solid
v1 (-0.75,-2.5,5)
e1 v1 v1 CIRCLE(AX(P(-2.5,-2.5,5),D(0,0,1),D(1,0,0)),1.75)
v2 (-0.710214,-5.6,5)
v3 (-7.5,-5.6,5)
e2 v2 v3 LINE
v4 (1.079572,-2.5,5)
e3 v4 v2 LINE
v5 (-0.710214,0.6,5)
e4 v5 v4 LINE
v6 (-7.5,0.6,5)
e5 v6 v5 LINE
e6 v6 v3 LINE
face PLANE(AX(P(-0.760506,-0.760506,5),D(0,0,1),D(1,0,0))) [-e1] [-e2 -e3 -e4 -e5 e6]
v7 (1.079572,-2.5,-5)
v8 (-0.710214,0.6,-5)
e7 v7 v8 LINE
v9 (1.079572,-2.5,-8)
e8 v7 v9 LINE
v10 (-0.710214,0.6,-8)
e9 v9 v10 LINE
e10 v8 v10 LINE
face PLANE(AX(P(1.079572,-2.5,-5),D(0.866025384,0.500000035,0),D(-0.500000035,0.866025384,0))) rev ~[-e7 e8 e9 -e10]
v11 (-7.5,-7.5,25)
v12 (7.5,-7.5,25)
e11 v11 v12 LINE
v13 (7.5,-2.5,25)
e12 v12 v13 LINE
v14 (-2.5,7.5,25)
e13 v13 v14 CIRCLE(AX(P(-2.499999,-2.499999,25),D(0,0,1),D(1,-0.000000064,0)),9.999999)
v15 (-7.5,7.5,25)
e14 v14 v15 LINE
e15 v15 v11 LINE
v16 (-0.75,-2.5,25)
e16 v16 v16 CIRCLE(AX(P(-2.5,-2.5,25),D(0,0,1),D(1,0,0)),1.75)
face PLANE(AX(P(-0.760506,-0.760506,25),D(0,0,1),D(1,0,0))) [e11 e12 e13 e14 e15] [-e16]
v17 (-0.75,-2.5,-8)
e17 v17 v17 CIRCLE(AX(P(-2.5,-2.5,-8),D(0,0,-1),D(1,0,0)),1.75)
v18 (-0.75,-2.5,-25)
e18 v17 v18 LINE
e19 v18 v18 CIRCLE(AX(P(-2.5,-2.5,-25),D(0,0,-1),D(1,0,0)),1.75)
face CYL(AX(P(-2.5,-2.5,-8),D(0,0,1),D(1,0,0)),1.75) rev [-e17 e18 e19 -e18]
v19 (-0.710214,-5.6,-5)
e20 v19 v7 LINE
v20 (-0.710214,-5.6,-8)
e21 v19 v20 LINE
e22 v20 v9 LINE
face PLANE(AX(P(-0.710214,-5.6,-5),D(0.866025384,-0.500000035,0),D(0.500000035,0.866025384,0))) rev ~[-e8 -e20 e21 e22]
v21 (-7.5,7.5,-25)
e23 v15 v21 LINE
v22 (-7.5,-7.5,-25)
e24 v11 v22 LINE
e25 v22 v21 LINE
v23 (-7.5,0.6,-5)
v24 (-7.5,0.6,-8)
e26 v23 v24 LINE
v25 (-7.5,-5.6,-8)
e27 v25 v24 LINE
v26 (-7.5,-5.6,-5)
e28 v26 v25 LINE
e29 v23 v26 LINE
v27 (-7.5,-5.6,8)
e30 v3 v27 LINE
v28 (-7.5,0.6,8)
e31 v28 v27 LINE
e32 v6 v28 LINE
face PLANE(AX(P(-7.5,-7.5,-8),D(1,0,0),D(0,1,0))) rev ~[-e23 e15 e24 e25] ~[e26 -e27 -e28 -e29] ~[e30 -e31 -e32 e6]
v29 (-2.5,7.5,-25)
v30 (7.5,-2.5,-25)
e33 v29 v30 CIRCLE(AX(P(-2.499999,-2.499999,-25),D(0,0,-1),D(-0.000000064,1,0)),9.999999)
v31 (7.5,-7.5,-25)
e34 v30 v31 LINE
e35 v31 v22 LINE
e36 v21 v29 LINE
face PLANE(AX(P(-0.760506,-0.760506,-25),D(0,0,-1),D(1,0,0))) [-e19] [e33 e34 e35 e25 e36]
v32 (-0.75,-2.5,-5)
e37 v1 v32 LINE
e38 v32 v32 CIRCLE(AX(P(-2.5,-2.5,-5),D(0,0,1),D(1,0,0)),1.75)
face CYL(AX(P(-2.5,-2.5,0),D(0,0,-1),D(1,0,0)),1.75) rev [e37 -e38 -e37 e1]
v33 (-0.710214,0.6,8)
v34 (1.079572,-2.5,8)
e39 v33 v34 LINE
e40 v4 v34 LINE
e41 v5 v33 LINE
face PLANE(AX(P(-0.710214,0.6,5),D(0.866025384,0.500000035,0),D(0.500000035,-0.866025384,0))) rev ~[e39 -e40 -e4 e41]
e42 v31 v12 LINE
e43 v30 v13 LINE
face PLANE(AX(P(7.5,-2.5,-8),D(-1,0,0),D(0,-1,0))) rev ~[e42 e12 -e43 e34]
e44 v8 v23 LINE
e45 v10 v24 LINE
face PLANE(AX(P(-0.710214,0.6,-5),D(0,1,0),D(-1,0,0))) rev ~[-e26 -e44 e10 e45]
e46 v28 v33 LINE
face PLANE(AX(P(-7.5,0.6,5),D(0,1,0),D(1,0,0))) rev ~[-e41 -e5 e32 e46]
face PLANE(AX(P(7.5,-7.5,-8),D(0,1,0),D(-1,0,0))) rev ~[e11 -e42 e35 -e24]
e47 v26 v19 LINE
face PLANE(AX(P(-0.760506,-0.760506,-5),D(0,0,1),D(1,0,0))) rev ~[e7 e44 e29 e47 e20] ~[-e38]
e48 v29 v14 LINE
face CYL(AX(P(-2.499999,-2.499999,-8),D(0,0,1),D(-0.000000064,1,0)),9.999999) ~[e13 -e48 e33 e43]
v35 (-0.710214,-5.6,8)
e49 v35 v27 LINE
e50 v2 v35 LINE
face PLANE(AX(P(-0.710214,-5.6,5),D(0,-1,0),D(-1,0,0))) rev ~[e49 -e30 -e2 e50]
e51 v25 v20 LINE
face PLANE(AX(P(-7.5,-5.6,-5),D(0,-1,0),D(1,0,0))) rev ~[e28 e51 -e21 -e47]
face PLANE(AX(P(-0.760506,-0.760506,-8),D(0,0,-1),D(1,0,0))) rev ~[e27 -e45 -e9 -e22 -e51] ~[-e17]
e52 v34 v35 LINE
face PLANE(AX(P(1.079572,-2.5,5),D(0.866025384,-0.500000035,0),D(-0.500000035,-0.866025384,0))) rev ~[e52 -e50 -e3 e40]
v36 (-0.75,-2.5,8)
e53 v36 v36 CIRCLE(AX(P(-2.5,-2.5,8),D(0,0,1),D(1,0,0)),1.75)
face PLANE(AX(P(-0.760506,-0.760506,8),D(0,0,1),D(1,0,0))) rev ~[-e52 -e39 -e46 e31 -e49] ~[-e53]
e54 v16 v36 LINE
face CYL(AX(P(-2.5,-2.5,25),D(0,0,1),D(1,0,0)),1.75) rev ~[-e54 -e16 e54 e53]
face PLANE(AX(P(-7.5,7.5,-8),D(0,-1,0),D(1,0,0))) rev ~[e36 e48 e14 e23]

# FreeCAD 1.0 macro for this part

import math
import FreeCAD as App
import Part
import Sketcher

V = App.Vector
Q = App.Units.Quantity

doc = App.newDocument("Part")
body = doc.addObject("PartDesign::Body", "Body")

sketch1 = body.newObject("Sketcher::SketchObject", "Sketch")
sketch1.AttachmentSupport = (doc.getObject("XY_Plane"), [""])
sketch1.MapMode = "FlatFace"
sketch1.addGeometry(Part.ArcOfCircle(Part.Circle(V(-2.5, -2.5, 0), V(0, 0, 1), 10), math.radians(0), math.radians(90)), False)
sketch1.addGeometry(Part.LineSegment(V(-2.5, 7.5, 0), V(-7.5, 7.5, 0)), False)
sketch1.addGeometry(Part.LineSegment(V(-7.5, 7.5, 0), V(-7.5, -7.5, 0)), False)
sketch1.addGeometry(Part.LineSegment(V(-7.5, -7.5, 0), V(7.5, -7.5, 0)), False)
sketch1.addGeometry(Part.LineSegment(V(7.5, -7.5, 0), V(7.5, -2.5, 0)), False)
sketch1.addGeometry(Part.Circle(V(-2.5, -2.5, 0), V(0, 0, 1), 1.8), False)
sketch1.addConstraint(Sketcher.Constraint("Tangent", 0, 2, 1, 1))
sketch1.addConstraint(Sketcher.Constraint("Coincident", 1, 2, 2, 1))
sketch1.addConstraint(Sketcher.Constraint("Coincident", 2, 2, 3, 1))
sketch1.addConstraint(Sketcher.Constraint("Coincident", 3, 2, 4, 1))
sketch1.addConstraint(Sketcher.Constraint("Tangent", 4, 2, 0, 1))
sketch1.addConstraint(Sketcher.Constraint("Horizontal", 1))
sketch1.addConstraint(Sketcher.Constraint("Vertical", 2))
sketch1.addConstraint(Sketcher.Constraint("Horizontal", 3))
sketch1.addConstraint(Sketcher.Constraint("Vertical", 4))
sketch1.addConstraint(Sketcher.Constraint("Coincident", 5, 3, 0, 3))
sketch1.addConstraint(Sketcher.Constraint("Symmetric", 1, 2, 3, 2, -1, 1))
sketch1.addConstraint(Sketcher.Constraint("Equal", 3, 2))
sketch1.addConstraint(Sketcher.Constraint("Radius", 0, 9.999999))
sketch1.addConstraint(Sketcher.Constraint("Diameter", 5, 3.5))
sketch1.addConstraint(Sketcher.Constraint("DistanceX", 1, 2, 1, 1, 5.0))
pad1 = body.newObject("PartDesign::Pad", "Pad")
pad1.Profile = sketch1
pad1.Length = 10
pad1.Midplane = True

sketch2 = body.newObject("Sketcher::SketchObject", "Sketch001")
sketch2.AttachmentSupport = (doc.getObject("XY_Plane"), [""])
sketch2.MapMode = "FlatFace"
sketch2.AttachmentOffset = App.Placement(V(0, 0, 5), App.Rotation())
sketch2.addGeometry(Part.LineSegment(V(-7.5, 0.6, 0), V(-0.7, 0.6, 0)), False)
sketch2.addGeometry(Part.LineSegment(V(-0.7, 0.6, 0), V(1.1, -2.5, 0)), False)
sketch2.addGeometry(Part.LineSegment(V(1.1, -2.5, 0), V(-0.7, -5.6, 0)), False)
sketch2.addGeometry(Part.LineSegment(V(-0.7, -5.6, 0), V(-7.5, -5.6, 0)), False)
sketch2.addGeometry(Part.LineSegment(V(-7.5, -5.6, 0), V(-7.5, -7.5, 0)), False)
sketch2.addGeometry(Part.LineSegment(V(-7.5, -7.5, 0), V(7.5, -7.5, 0)), False)
sketch2.addGeometry(Part.LineSegment(V(7.5, -7.5, 0), V(7.5, -2.5, 0)), False)
sketch2.addGeometry(Part.ArcOfCircle(Part.Circle(V(-2.5, -2.5, 0), V(0, 0, 1), 10), math.radians(0), math.radians(90)), False)
sketch2.addGeometry(Part.LineSegment(V(-2.5, 7.5, 0), V(-7.5, 7.5, 0)), False)
sketch2.addGeometry(Part.LineSegment(V(-7.5, 7.5, 0), V(-7.5, 0.6, 0)), False)
sketch2.addConstraint(Sketcher.Constraint("Coincident", 0, 2, 1, 1))
sketch2.addConstraint(Sketcher.Constraint("Coincident", 1, 2, 2, 1))
sketch2.addConstraint(Sketcher.Constraint("Coincident", 2, 2, 3, 1))
sketch2.addConstraint(Sketcher.Constraint("Coincident", 3, 2, 4, 1))
sketch2.addConstraint(Sketcher.Constraint("Coincident", 4, 2, 5, 1))
sketch2.addConstraint(Sketcher.Constraint("Coincident", 5, 2, 6, 1))
sketch2.addConstraint(Sketcher.Constraint("Tangent", 6, 2, 7, 1))
sketch2.addConstraint(Sketcher.Constraint("Tangent", 7, 2, 8, 1))
sketch2.addConstraint(Sketcher.Constraint("Coincident", 8, 2, 9, 1))
sketch2.addConstraint(Sketcher.Constraint("Coincident", 9, 2, 0, 1))
sketch2.addConstraint(Sketcher.Constraint("Horizontal", 0))
sketch2.addConstraint(Sketcher.Constraint("Horizontal", 3))
sketch2.addConstraint(Sketcher.Constraint("Vertical", 4))
sketch2.addConstraint(Sketcher.Constraint("Horizontal", 5))
sketch2.addConstraint(Sketcher.Constraint("Vertical", 6))
sketch2.addConstraint(Sketcher.Constraint("Horizontal", 8))
sketch2.addConstraint(Sketcher.Constraint("Vertical", 9))
sketch2.addConstraint(Sketcher.Constraint("Symmetric", 5, 2, 8, 2, -1, 1))
sketch2.addConstraint(Sketcher.Constraint("Horizontal", 7, 3, 1, 2))
sketch2.addConstraint(Sketcher.Constraint("Vertical", 0, 2, 2, 2))
sketch2.addConstraint(Sketcher.Constraint("Vertical", 4, 2, 8, 2))
sketch2.addConstraint(Sketcher.Constraint("Equal", 8, 6))
sketch2.addConstraint(Sketcher.Constraint("Equal", 1, 2))
sketch2.addConstraint(Sketcher.Constraint("Radius", 7, 9.999999))
sketch2.addConstraint(Sketcher.Constraint("DistanceX", 5, 1, 5, 2, 15.0))
sketch2.addConstraint(Sketcher.Constraint("Angle", 1, Q("-59.999998 deg")))
sketch2.addConstraint(Sketcher.Constraint("DistanceY", 4, 2, 4, 1, 1.9))
sketch2.addConstraint(Sketcher.Constraint("DistanceX", 0, 1, 0, 2, 6.789786))
pad2 = body.newObject("PartDesign::Pad", "Pad001")
pad2.Profile = sketch2
pad2.Length = 3

sketch3 = body.newObject("Sketcher::SketchObject", "Sketch002")
sketch3.AttachmentSupport = (doc.getObject("XY_Plane"), [""])
sketch3.MapMode = "FlatFace"
sketch3.AttachmentOffset = App.Placement(V(0, 0, -5), App.Rotation())
sketch3.addGeometry(Part.LineSegment(V(1.1, -2.5, 0), V(-0.7, 0.6, 0)), False)
sketch3.addGeometry(Part.LineSegment(V(-0.7, 0.6, 0), V(-7.5, 0.6, 0)), False)
sketch3.addGeometry(Part.LineSegment(V(-7.5, 0.6, 0), V(-7.5, 7.5, 0)), False)
sketch3.addGeometry(Part.LineSegment(V(-7.5, 7.5, 0), V(-2.5, 7.5, 0)), False)
sketch3.addGeometry(Part.ArcOfCircle(Part.Circle(V(-2.5, -2.5, 0), V(0, 0, 1), 10), math.radians(0), math.radians(90)), False)
sketch3.addGeometry(Part.LineSegment(V(7.5, -2.5, 0), V(7.5, -7.5, 0)), False)
sketch3.addGeometry(Part.LineSegment(V(7.5, -7.5, 0), V(-7.5, -7.5, 0)), False)
sketch3.addGeometry(Part.LineSegment(V(-7.5, -7.5, 0), V(-7.5, -5.6, 0)), False)
sketch3.addGeometry(Part.LineSegment(V(-7.5, -5.6, 0), V(-0.7, -5.6, 0)), False)
sketch3.addGeometry(Part.LineSegment(V(-0.7, -5.6, 0), V(1.1, -2.5, 0)), False)
sketch3.addConstraint(Sketcher.Constraint("Coincident", 0, 2, 1, 1))
sketch3.addConstraint(Sketcher.Constraint("Coincident", 1, 2, 2, 1))
sketch3.addConstraint(Sketcher.Constraint("Coincident", 2, 2, 3, 1))
sketch3.addConstraint(Sketcher.Constraint("Tangent", 3, 2, 4, 2))
sketch3.addConstraint(Sketcher.Constraint("Tangent", 4, 1, 5, 1))
sketch3.addConstraint(Sketcher.Constraint("Coincident", 5, 2, 6, 1))
sketch3.addConstraint(Sketcher.Constraint("Coincident", 6, 2, 7, 1))
sketch3.addConstraint(Sketcher.Constraint("Coincident", 7, 2, 8, 1))
sketch3.addConstraint(Sketcher.Constraint("Coincident", 8, 2, 9, 1))
sketch3.addConstraint(Sketcher.Constraint("Coincident", 9, 2, 0, 1))
sketch3.addConstraint(Sketcher.Constraint("Horizontal", 1))
sketch3.addConstraint(Sketcher.Constraint("Vertical", 2))
sketch3.addConstraint(Sketcher.Constraint("Horizontal", 3))
sketch3.addConstraint(Sketcher.Constraint("Vertical", 5))
sketch3.addConstraint(Sketcher.Constraint("Horizontal", 6))
sketch3.addConstraint(Sketcher.Constraint("Vertical", 7))
sketch3.addConstraint(Sketcher.Constraint("Horizontal", 8))
sketch3.addConstraint(Sketcher.Constraint("Symmetric", 2, 2, 5, 2, -1, 1))
sketch3.addConstraint(Sketcher.Constraint("Horizontal", 4, 1, 9, 2))
sketch3.addConstraint(Sketcher.Constraint("Vertical", 2, 2, 6, 2))
sketch3.addConstraint(Sketcher.Constraint("Vertical", 0, 2, 8, 2))
sketch3.addConstraint(Sketcher.Constraint("Equal", 3, 5))
sketch3.addConstraint(Sketcher.Constraint("Equal", 0, 9))
sketch3.addConstraint(Sketcher.Constraint("Radius", 4, 9.999999))
sketch3.addConstraint(Sketcher.Constraint("DistanceX", 3, 1, 3, 2, 5.0))
sketch3.addConstraint(Sketcher.Constraint("Angle", 0, Q("120.000002 deg")))
sketch3.addConstraint(Sketcher.Constraint("DistanceY", 2, 1, 2, 2, 6.9))
sketch3.addConstraint(Sketcher.Constraint("DistanceX", 1, 2, 1, 1, 6.789786))
pad3 = body.newObject("PartDesign::Pad", "Pad002")
pad3.Profile = sketch3
pad3.Length = 3
pad3.Reversed = True

sketch4 = body.newObject("Sketcher::SketchObject", "Sketch003")
sketch4.AttachmentSupport = (doc.getObject("XY_Plane"), [""])
sketch4.MapMode = "FlatFace"
sketch4.AttachmentOffset = App.Placement(V(0, 0, 8), App.Rotation())
sketch4.addGeometry(Part.LineSegment(V(-8, 8, 0), V(-8, -8, 0)), False)
sketch4.addGeometry(Part.LineSegment(V(-8, -8, 0), V(8, -8, 0)), False)
sketch4.addGeometry(Part.LineSegment(V(8, -8, 0), V(8, -2, 0)), False)
sketch4.addGeometry(Part.ArcOfCircle(Part.Circle(V(-2, -2, 0), V(0, 0, 1), 10), math.radians(0), math.radians(90)), False)
sketch4.addGeometry(Part.LineSegment(V(-2, 8, 0), V(-8, 8, 0)), False)
sketch4.addConstraint(Sketcher.Constraint("Coincident", 0, 2, 1, 1))
sketch4.addConstraint(Sketcher.Constraint("Coincident", 1, 2, 2, 1))
sketch4.addConstraint(Sketcher.Constraint("Tangent", 2, 2, 3, 1))
sketch4.addConstraint(Sketcher.Constraint("Tangent", 3, 2, 4, 1))
sketch4.addConstraint(Sketcher.Constraint("Coincident", 4, 2, 0, 1))
sketch4.addConstraint(Sketcher.Constraint("Vertical", 0))
sketch4.addConstraint(Sketcher.Constraint("Horizontal", 1))
sketch4.addConstraint(Sketcher.Constraint("Vertical", 2))
sketch4.addConstraint(Sketcher.Constraint("Horizontal", 4))
sketch4.addConstraint(Sketcher.Constraint("Symmetric", 1, 2, 4, 2, -1, 1))
sketch4.addConstraint(Sketcher.Constraint("Equal", 1, 0))
sketch4.addConstraint(Sketcher.Constraint("Radius", 3, 9.999999))
sketch4.addConstraint(Sketcher.Constraint("DistanceX", 1, 1, 1, 2, 15.0))
pad4 = body.newObject("PartDesign::Pad", "Pad003")
pad4.Profile = sketch4
pad4.Length = 17

sketch5 = body.newObject("Sketcher::SketchObject", "Sketch004")
sketch5.AttachmentSupport = (doc.getObject("XY_Plane"), [""])
sketch5.MapMode = "FlatFace"
sketch5.AttachmentOffset = App.Placement(V(0, 0, -8), App.Rotation())
sketch5.addGeometry(Part.LineSegment(V(7.5, -7.5, 0), V(-7.5, -7.5, 0)), False)
sketch5.addGeometry(Part.LineSegment(V(-7.5, -7.5, 0), V(-7.5, 7.5, 0)), False)
sketch5.addGeometry(Part.LineSegment(V(-7.5, 7.5, 0), V(-2.5, 7.5, 0)), False)
sketch5.addGeometry(Part.ArcOfCircle(Part.Circle(V(-2.5, -2.5, 0), V(0, 0, 1), 10), math.radians(0), math.radians(90)), False)
sketch5.addGeometry(Part.LineSegment(V(7.5, -2.5, 0), V(7.5, -7.5, 0)), False)
sketch5.addGeometry(Part.Circle(V(-2.5, -2.5, 0), V(0, 0, 1), 1.8), False)
sketch5.addConstraint(Sketcher.Constraint("Coincident", 0, 2, 1, 1))
sketch5.addConstraint(Sketcher.Constraint("Coincident", 1, 2, 2, 1))
sketch5.addConstraint(Sketcher.Constraint("Tangent", 2, 2, 3, 2))
sketch5.addConstraint(Sketcher.Constraint("Tangent", 3, 1, 4, 1))
sketch5.addConstraint(Sketcher.Constraint("Coincident", 4, 2, 0, 1))
sketch5.addConstraint(Sketcher.Constraint("Horizontal", 0))
sketch5.addConstraint(Sketcher.Constraint("Vertical", 1))
sketch5.addConstraint(Sketcher.Constraint("Horizontal", 2))
sketch5.addConstraint(Sketcher.Constraint("Vertical", 4))
sketch5.addConstraint(Sketcher.Constraint("Coincident", 5, 3, 3, 3))
sketch5.addConstraint(Sketcher.Constraint("Symmetric", 1, 2, 4, 2, -1, 1))
sketch5.addConstraint(Sketcher.Constraint("Equal", 0, 1))
sketch5.addConstraint(Sketcher.Constraint("Radius", 3, 9.999999))
sketch5.addConstraint(Sketcher.Constraint("Diameter", 5, 3.5))
sketch5.addConstraint(Sketcher.Constraint("DistanceX", 0, 2, 0, 1, 15.0))
pad5 = body.newObject("PartDesign::Pad", "Pad004")
pad5.Profile = sketch5
pad5.Length = 17
pad5.Reversed = True

sketch6 = body.newObject("Sketcher::SketchObject", "Sketch005")
sketch6.AttachmentSupport = (doc.getObject("XY_Plane"), [""])
sketch6.MapMode = "FlatFace"
sketch6.AttachmentOffset = App.Placement(V(0, 0, 25), App.Rotation())
sketch6.addGeometry(Part.Circle(V(-2.5, -2.5, 0), V(0, 0, 1), 1.8), False)
sketch6.addConstraint(Sketcher.Constraint("Diameter", 0, 3.5))
sketch6.addConstraint(Sketcher.Constraint("DistanceX", 0, 3, -1, 1, 2.5))
sketch6.addConstraint(Sketcher.Constraint("DistanceY", 0, 3, -1, 1, 2.5))
pocket1 = body.newObject("PartDesign::Pocket", "Pocket")
pocket1.Profile = sketch6
pocket1.Length = 50

doc.recompute()
